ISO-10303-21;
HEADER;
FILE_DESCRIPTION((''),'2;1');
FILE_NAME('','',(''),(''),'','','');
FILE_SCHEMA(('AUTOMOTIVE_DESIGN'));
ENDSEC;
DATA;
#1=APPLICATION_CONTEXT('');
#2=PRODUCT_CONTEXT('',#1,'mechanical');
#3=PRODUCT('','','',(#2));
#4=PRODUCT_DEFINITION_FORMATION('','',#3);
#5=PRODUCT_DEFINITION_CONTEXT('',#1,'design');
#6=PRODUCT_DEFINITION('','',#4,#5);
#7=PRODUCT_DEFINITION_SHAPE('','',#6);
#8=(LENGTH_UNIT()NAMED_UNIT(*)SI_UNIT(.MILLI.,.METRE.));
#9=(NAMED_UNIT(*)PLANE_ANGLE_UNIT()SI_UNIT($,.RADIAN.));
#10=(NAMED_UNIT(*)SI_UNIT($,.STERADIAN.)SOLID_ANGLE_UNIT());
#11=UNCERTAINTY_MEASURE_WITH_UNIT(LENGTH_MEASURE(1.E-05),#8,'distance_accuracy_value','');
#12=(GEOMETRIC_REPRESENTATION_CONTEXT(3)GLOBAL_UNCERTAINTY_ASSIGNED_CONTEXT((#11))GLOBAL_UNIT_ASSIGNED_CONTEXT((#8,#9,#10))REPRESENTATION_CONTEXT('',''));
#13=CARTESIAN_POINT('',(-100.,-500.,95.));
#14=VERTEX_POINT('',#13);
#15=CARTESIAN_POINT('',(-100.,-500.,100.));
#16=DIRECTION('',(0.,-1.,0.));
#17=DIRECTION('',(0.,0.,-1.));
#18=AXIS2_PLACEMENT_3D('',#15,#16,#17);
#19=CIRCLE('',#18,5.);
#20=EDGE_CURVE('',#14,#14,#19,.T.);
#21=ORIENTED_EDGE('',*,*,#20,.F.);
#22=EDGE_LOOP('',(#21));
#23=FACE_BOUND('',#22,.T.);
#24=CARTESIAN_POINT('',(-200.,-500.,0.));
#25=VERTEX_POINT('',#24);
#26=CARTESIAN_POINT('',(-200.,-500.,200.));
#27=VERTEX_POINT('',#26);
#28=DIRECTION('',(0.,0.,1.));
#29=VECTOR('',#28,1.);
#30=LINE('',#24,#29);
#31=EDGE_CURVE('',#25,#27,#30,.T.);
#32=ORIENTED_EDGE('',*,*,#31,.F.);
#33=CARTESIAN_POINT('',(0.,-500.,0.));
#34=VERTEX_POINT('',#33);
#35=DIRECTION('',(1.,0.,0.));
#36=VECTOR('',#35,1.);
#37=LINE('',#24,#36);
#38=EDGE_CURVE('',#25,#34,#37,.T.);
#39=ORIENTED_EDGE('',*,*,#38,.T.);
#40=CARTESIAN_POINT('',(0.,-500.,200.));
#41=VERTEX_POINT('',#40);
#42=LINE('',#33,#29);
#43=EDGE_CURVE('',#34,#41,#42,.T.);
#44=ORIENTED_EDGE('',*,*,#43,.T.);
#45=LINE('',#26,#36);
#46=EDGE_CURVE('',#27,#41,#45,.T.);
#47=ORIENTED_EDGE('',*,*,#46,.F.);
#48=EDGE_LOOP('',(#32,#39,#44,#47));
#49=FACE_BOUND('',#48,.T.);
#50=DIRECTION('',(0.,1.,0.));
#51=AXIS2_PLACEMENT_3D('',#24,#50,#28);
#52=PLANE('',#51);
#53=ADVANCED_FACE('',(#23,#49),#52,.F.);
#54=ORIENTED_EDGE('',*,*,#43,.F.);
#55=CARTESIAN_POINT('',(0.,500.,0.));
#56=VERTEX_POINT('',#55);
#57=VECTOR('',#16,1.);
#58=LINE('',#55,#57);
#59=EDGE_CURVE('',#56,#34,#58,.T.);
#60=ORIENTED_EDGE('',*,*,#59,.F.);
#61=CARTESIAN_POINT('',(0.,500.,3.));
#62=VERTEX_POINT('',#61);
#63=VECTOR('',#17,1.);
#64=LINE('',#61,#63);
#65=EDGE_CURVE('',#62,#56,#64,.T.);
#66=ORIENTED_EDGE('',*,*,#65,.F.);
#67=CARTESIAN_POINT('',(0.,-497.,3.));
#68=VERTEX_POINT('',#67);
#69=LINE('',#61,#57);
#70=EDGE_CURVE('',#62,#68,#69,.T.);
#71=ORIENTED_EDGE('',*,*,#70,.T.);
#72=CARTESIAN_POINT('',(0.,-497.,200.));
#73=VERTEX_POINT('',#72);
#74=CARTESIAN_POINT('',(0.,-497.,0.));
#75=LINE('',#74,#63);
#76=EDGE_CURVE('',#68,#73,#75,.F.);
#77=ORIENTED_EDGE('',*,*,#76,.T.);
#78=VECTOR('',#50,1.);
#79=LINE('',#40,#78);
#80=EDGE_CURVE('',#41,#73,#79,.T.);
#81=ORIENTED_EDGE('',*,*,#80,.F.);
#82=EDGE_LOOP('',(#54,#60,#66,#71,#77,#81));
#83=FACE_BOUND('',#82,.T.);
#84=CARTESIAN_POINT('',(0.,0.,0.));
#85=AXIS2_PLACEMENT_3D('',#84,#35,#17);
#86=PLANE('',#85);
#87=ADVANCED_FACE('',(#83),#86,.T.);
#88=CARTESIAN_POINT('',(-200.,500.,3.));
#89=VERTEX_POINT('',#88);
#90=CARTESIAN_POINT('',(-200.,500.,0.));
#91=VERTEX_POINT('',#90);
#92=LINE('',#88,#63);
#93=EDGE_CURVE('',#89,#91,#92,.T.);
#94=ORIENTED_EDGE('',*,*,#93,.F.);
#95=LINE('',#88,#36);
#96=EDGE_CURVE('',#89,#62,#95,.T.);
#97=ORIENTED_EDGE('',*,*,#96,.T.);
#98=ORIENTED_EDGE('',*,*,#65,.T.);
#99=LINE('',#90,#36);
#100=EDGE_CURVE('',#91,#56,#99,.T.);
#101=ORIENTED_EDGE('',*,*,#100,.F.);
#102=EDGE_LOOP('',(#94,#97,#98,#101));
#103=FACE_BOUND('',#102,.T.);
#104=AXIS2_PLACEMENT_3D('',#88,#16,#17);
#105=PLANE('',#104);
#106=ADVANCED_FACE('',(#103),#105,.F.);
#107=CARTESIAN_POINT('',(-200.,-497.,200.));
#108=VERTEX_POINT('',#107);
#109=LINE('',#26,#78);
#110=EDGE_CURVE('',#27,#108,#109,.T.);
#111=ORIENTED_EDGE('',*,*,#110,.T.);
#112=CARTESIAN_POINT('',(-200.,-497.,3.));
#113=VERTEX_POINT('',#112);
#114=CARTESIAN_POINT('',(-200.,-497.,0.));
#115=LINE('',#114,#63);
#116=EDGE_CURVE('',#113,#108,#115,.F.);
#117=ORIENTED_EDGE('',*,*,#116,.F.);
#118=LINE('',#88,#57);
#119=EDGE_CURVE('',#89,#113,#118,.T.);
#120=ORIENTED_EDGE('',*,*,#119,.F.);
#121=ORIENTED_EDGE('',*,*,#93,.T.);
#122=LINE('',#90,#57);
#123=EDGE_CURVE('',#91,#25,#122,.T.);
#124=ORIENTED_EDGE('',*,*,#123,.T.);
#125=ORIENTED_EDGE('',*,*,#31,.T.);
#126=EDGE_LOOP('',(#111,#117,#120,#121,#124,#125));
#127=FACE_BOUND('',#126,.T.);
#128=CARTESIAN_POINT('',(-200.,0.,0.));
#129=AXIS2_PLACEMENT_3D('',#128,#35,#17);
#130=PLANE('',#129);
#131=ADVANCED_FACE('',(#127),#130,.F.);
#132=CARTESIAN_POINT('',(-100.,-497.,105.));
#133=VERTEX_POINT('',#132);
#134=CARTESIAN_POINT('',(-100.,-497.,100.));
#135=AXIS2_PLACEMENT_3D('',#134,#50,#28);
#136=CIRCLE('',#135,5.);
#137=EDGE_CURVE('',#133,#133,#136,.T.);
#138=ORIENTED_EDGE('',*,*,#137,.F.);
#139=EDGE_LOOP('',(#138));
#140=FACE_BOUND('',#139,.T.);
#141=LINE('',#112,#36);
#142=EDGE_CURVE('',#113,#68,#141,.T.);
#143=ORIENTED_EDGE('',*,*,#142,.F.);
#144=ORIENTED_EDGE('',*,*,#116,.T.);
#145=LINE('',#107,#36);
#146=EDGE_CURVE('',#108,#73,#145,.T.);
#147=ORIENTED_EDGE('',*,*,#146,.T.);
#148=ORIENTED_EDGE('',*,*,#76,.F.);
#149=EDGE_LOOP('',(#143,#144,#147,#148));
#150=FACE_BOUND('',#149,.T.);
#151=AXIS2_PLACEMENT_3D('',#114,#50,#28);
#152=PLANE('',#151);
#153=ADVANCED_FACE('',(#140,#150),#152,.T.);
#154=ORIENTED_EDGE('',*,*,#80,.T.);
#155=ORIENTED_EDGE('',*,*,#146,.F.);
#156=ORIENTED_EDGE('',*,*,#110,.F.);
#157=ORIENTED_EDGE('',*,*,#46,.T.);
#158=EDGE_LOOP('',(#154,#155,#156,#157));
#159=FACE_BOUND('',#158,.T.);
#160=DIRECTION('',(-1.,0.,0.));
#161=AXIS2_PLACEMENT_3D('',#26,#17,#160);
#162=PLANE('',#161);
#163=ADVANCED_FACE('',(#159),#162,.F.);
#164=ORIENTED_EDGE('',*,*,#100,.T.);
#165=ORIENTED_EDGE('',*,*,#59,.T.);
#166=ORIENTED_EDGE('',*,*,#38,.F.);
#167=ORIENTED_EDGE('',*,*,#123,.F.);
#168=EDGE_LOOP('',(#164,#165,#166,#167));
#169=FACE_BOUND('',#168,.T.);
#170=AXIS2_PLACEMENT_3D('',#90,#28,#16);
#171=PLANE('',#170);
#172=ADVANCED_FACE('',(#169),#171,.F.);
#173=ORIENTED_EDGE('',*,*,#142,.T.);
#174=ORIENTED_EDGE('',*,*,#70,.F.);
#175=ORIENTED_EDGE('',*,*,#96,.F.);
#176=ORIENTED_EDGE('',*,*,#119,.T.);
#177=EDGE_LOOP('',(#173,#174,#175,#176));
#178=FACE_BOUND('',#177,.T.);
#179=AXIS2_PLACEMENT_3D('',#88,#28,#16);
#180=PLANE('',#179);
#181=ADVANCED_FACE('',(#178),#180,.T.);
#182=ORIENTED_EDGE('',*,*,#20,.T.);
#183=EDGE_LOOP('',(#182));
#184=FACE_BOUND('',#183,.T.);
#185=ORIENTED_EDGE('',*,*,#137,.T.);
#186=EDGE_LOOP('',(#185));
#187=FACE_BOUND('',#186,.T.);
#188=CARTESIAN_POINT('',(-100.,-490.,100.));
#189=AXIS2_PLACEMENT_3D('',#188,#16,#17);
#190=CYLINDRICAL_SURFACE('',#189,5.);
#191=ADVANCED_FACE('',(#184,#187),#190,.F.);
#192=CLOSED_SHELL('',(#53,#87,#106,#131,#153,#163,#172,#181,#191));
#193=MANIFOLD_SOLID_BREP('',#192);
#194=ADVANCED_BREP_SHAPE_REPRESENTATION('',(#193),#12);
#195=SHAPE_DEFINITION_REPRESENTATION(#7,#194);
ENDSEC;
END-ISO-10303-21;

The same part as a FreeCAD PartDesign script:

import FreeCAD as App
import Part
import Sketcher

V = App.Vector
Q = App.Units.Quantity


def add_polygon(sketch, points):
    """Adds a closed chain of lines whose ends are joined by coincident constraints."""
    first, n = sketch.GeometryCount, len(points)
    for a, b in zip(points, points[1:] + points[:1]):
        sketch.addGeometry(Part.LineSegment(App.Vector(*a, 0), App.Vector(*b, 0)), False)
    for i in range(n):
        sketch.addConstraint(Sketcher.Constraint("Coincident", first + i, 2, first + (i + 1) % n, 1))

doc = App.newDocument("Part")
body = doc.addObject("PartDesign::Body", "Body")

# Sketch on YZ plane
sketch1 = body.newObject("Sketcher::SketchObject", "Sketch")
sketch1.AttachmentSupport = (doc.getObject("YZ_Plane"), [""])
sketch1.MapMode = "FlatFace"
add_polygon(sketch1, [(-500, 0), (500, 0), (500, 3), (-497, 3), (-497, 200), (-500, 200)])  # lines 0-5
sketch1.addConstraint(Sketcher.Constraint("Horizontal", 0))
sketch1.addConstraint(Sketcher.Constraint("Vertical", 1))
sketch1.addConstraint(Sketcher.Constraint("Horizontal", 2))
sketch1.addConstraint(Sketcher.Constraint("Vertical", 3))
sketch1.addConstraint(Sketcher.Constraint("Horizontal", 4))
sketch1.addConstraint(Sketcher.Constraint("Vertical", 5))
sketch1.addConstraint(Sketcher.Constraint("Symmetric", 0, 2, 5, 2, -1, 1))
sketch1.addConstraint(Sketcher.Constraint("Equal", 4, 1))
sketch1.addConstraint(Sketcher.Constraint("DistanceX", 0, 1, 0, 2, Q("1000 mm")))
sketch1.addConstraint(Sketcher.Constraint("DistanceX", 2, 2, 2, 1, Q("997 mm")))
sketch1.addConstraint(Sketcher.Constraint("DistanceY", 3, 1, 3, 2, Q("197 mm")))
pad1 = body.newObject("PartDesign::Pad", "Pad")
pad1.Profile = sketch1
pad1.Length = 200
pad1.Reversed = True

# Sketch on XZ plane
sketch2 = body.newObject("Sketcher::SketchObject", "Sketch001")
sketch2.AttachmentSupport = (doc.getObject("XZ_Plane"), [""])
sketch2.MapMode = "FlatFace"
sketch2.AttachmentOffset = App.Placement(V(0, 0, 500), App.Rotation())
sketch2.addGeometry(Part.Circle(V(-100, 100, 0), V(0, 0, 1), 5), False)
sketch2.addConstraint(Sketcher.Constraint("Diameter", 0, Q("10 mm")))
sketch2.addConstraint(Sketcher.Constraint("DistanceX", 0, 3, -1, 1, Q("100 mm")))
sketch2.addConstraint(Sketcher.Constraint("DistanceY", -1, 1, 0, 3, Q("100 mm")))
pocket1 = body.newObject("PartDesign::Pocket", "Pocket")
pocket1.Profile = sketch2
pocket1.Length = 10

doc.recompute()
